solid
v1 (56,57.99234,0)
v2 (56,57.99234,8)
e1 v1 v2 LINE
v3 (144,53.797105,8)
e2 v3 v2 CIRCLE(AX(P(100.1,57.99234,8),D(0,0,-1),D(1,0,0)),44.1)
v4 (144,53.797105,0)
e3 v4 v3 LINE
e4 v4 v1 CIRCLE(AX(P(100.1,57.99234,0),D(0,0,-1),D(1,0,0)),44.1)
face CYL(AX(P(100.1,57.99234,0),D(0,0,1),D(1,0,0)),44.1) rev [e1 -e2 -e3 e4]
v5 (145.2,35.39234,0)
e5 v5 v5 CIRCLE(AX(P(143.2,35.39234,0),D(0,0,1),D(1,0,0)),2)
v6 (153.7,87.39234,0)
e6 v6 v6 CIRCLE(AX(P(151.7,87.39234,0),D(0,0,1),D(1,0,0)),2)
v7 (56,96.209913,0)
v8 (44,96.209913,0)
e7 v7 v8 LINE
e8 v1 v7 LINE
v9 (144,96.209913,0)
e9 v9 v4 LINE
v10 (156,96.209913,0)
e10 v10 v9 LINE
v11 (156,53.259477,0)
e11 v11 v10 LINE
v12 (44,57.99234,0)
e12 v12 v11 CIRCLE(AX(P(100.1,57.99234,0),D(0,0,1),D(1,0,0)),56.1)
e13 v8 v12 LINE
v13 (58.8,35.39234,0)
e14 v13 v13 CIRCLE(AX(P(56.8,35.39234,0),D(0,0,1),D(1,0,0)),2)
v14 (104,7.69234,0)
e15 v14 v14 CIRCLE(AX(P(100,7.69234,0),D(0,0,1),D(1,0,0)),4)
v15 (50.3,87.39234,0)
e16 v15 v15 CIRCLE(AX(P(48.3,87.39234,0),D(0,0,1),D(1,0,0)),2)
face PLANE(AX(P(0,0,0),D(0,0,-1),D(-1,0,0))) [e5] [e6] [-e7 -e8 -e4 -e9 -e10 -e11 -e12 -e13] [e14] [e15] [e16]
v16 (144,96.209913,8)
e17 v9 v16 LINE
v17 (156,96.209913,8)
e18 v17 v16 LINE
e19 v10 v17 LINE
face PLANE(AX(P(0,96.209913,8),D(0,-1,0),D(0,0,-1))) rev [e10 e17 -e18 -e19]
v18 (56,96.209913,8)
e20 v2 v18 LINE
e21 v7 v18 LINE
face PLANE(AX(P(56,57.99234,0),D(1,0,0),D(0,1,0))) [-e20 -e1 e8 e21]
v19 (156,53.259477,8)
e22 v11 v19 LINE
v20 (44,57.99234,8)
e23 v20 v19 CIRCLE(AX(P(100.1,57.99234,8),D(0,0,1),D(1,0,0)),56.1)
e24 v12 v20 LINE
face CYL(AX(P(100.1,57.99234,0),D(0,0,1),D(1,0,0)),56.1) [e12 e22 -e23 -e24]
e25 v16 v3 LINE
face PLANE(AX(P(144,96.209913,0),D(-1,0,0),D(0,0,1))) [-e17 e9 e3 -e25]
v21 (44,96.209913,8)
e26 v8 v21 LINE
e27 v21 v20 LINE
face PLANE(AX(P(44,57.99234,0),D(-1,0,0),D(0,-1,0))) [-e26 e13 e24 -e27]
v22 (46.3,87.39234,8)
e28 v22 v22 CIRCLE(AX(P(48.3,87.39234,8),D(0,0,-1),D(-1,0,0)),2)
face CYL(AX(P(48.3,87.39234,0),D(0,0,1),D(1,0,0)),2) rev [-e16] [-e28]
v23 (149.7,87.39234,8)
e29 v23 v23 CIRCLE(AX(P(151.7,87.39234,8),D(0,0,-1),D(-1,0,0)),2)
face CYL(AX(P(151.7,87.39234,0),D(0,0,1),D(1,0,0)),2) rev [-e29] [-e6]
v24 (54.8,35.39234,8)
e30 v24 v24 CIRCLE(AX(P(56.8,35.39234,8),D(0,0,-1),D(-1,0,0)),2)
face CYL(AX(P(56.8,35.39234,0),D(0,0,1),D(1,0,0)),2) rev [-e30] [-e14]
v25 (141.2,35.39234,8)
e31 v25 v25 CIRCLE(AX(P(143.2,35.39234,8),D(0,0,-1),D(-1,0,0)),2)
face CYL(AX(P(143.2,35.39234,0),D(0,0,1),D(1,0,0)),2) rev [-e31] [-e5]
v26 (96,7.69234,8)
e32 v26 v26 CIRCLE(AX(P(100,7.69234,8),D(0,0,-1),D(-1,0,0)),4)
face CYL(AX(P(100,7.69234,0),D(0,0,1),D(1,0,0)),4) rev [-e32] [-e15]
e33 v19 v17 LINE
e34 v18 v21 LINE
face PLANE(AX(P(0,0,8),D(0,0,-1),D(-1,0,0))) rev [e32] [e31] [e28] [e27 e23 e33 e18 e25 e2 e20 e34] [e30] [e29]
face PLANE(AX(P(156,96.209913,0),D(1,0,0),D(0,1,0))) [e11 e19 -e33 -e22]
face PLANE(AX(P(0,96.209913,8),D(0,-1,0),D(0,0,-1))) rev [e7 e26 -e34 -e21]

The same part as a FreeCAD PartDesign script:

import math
import FreeCAD as App
import Part
import Sketcher
Q = App.Units.Quantity


def add_polygon(sketch, points):
    """Adds a closed chain of lines whose ends are joined by coincident constraints."""
    first, n = sketch.GeometryCount, len(points)
    for a, b in zip(points, points[1:] + points[:1]):
        sketch.addGeometry(Part.LineSegment(App.Vector(*a, 0), App.Vector(*b, 0)), False)
    for i in range(n):
        sketch.addConstraint(Sketcher.Constraint("Coincident", first + i, 2, first + (i + 1) % n, 1))

doc = App.newDocument("Part")
body = doc.addObject("PartDesign::Body", "Body")

sketch1 = body.newObject("Sketcher::SketchObject", "Sketch")
sketch1.AttachmentSupport = (doc.getObject("XY_Plane"), [""])
sketch1.MapMode = "FlatFace"
add_polygon(sketch1, [(0, 96), (0, -4), (200, -4), (200, 96)])
sketch1.addConstraint(Sketcher.Constraint("Vertical", 0))
sketch1.addConstraint(Sketcher.Constraint("Horizontal", 1))
sketch1.addConstraint(Sketcher.Constraint("Vertical", 2))
sketch1.addConstraint(Sketcher.Constraint("Horizontal", 3))
sketch1.addConstraint(Sketcher.Constraint("PointOnObject", 0, 2, -2))
sketch1.addConstraint(Sketcher.Constraint("DistanceX", 1, 1, 1, 2, Q("200 mm")))
sketch1.addConstraint(Sketcher.Constraint("DistanceY", 0, 2, 0, 1, Q("100 mm")))
sketch1.addConstraint(Sketcher.Constraint("DistanceY", 0, 2, -1, 1, Q("3.790087 mm")))
pad1 = body.newObject("PartDesign::Pad", "Pad")
pad1.Profile = sketch1
pad1.Length = 8

sketch2 = body.newObject("Sketcher::SketchObject", "Sketch001")
sketch2.AttachmentSupport = (doc.getObject("XY_Plane"), [""])
sketch2.MapMode = "FlatFace"
sketch2.AttachmentOffset = App.Placement(App.Vector(0, 0, 8), App.Rotation())
add_polygon(sketch2, [(-23, 120), (-23, -27), (223, -27), (223, 120)])
sketch2.addGeometry(Part.LineSegment(App.Vector(144, 96, 0), App.Vector(156, 96, 0)), False)
sketch2.addGeometry(Part.LineSegment(App.Vector(156, 96, 0), App.Vector(156, 53, 0)), False)
sketch2.addGeometry(Part.ArcOfCircle(Part.Circle(App.Vector(100, 58, 0), App.Vector(0, 0, 1), 56), math.radians(180), math.radians(355)), False)
sketch2.addGeometry(Part.LineSegment(App.Vector(44, 58, 0), App.Vector(44, 96, 0)), False)
sketch2.addGeometry(Part.LineSegment(App.Vector(44, 96, 0), App.Vector(56, 96, 0)), False)
sketch2.addGeometry(Part.LineSegment(App.Vector(56, 96, 0), App.Vector(56, 58, 0)), False)
sketch2.addGeometry(Part.ArcOfCircle(Part.Circle(App.Vector(100, 58, 0), App.Vector(0, 0, 1), 44), math.radians(180), math.radians(355)), False)
sketch2.addGeometry(Part.LineSegment(App.Vector(144, 54, 0), App.Vector(144, 96, 0)), False)
sketch2.addConstraint(Sketcher.Constraint("Coincident", 4, 2, 5, 1))
sketch2.addConstraint(Sketcher.Constraint("Coincident", 5, 2, 6, 2))
sketch2.addConstraint(Sketcher.Constraint("Tangent", 6, 1, 7, 1))
sketch2.addConstraint(Sketcher.Constraint("Coincident", 7, 2, 8, 1))
sketch2.addConstraint(Sketcher.Constraint("Coincident", 8, 2, 9, 1))
sketch2.addConstraint(Sketcher.Constraint("Tangent", 9, 2, 10, 1))
sketch2.addConstraint(Sketcher.Constraint("Coincident", 10, 2, 11, 1))
sketch2.addConstraint(Sketcher.Constraint("Coincident", 11, 2, 4, 1))
sketch2.addConstraint(Sketcher.Constraint("Vertical", 0))
sketch2.addConstraint(Sketcher.Constraint("Horizontal", 1))
sketch2.addConstraint(Sketcher.Constraint("Vertical", 2))
sketch2.addConstraint(Sketcher.Constraint("Horizontal", 3))
sketch2.addConstraint(Sketcher.Constraint("Horizontal", 4))
sketch2.addConstraint(Sketcher.Constraint("Vertical", 5))
sketch2.addConstraint(Sketcher.Constraint("Vertical", 7))
sketch2.addConstraint(Sketcher.Constraint("Horizontal", 8))
sketch2.addConstraint(Sketcher.Constraint("Vertical", 9))
sketch2.addConstraint(Sketcher.Constraint("Vertical", 11))
sketch2.addConstraint(Sketcher.Constraint("Coincident", 10, 3, 6, 3))
sketch2.addConstraint(Sketcher.Constraint("Horizontal", 4, 2, 7, 2))
sketch2.addConstraint(Sketcher.Constraint("Equal", 4, 8))
sketch2.addConstraint(Sketcher.Constraint("Radius", 6, Q("56.1 mm")))
sketch2.addConstraint(Sketcher.Constraint("Radius", 10, Q("44.1 mm")))
sketch2.addConstraint(Sketcher.Constraint("DistanceX", -1, 1, 4, 2, Q("156 mm")))
sketch2.addConstraint(Sketcher.Constraint("DistanceX", -1, 1, 6, 1, Q("44 mm")))
sketch2.addConstraint(Sketcher.Constraint("DistanceX", 1, 1, 1, 2, Q("246.75 mm")))
sketch2.addConstraint(Sketcher.Constraint("DistanceY", 0, 2, 0, 1, Q("146.75 mm")))
sketch2.addConstraint(Sketcher.Constraint("DistanceX", 0, 2, -1, 1, Q("23.375 mm")))
sketch2.addConstraint(Sketcher.Constraint("DistanceY", 0, 2, -1, 1, Q("27.165 mm")))
sketch2.addConstraint(Sketcher.Constraint("DistanceY", 5, 2, 5, 1, Q("42.950436 mm")))
sketch2.addConstraint(Sketcher.Constraint("DistanceY", -1, 1, 6, 3, Q("57.99234 mm")))
pocket1 = body.newObject("PartDesign::Pocket", "Pocket")
pocket1.Profile = sketch2
pocket1.Type = "ThroughAll"

sketch3 = body.newObject("Sketcher::SketchObject", "Sketch002")
sketch3.AttachmentSupport = (doc.getObject("XY_Plane"), [""])
sketch3.MapMode = "FlatFace"
sketch3.AttachmentOffset = App.Placement(App.Vector(0, 0, 13), App.Rotation())
sketch3.addGeometry(Part.Circle(App.Vector(48.3, 87.4, 0), App.Vector(0, 0, 1), 2), False)
sketch3.addGeometry(Part.Circle(App.Vector(56.8, 35.4, 0), App.Vector(0, 0, 1), 2), False)
sketch3.addGeometry(Part.Circle(App.Vector(143.2, 35.4, 0), App.Vector(0, 0, 1), 2), False)
sketch3.addGeometry(Part.Circle(App.Vector(151.7, 87.4, 0), App.Vector(0, 0, 1), 2), False)
sketch3.addGeometry(Part.Circle(App.Vector(100, 7.7, 0), App.Vector(0, 0, 1), 4), False)
sketch3.addConstraint(Sketcher.Constraint("Equal", 0, 1))
sketch3.addConstraint(Sketcher.Constraint("Equal", 1, 2))
sketch3.addConstraint(Sketcher.Constraint("Equal", 2, 3))
sketch3.addConstraint(Sketcher.Constraint("Horizontal", 1, 3, 2, 3))
sketch3.addConstraint(Sketcher.Constraint("Horizontal", 0, 3, 3, 3))
sketch3.addConstraint(Sketcher.Constraint("Diameter", 0, Q("4 mm")))
sketch3.addConstraint(Sketcher.Constraint("Diameter", 4, Q("8 mm")))
sketch3.addConstraint(Sketcher.Constraint("DistanceX", -1, 1, 4, 3, Q("100 mm")))
sketch3.addConstraint(Sketcher.Constraint("DistanceY", 1, 3, 0, 3, Q("52 mm")))
sketch3.addConstraint(Sketcher.Constraint("DistanceX", -1, 1, 0, 3, Q("48.3 mm")))
sketch3.addConstraint(Sketcher.Constraint("DistanceX", -1, 1, 1, 3, Q("56.8 mm")))
sketch3.addConstraint(Sketcher.Constraint("DistanceX", -1, 1, 2, 3, Q("143.2 mm")))
sketch3.addConstraint(Sketcher.Constraint("DistanceX", -1, 1, 3, 3, Q("151.7 mm")))
sketch3.addConstraint(Sketcher.Constraint("DistanceY", 4, 3, 2, 3, Q("27.7 mm")))
sketch3.addConstraint(Sketcher.Constraint("DistanceY", -1, 1, 0, 3, Q("87.39234 mm")))
pocket2 = body.newObject("PartDesign::Pocket", "Pocket001")
pocket2.Profile = sketch3
pocket2.Type = "ThroughAll"

doc.recompute()
